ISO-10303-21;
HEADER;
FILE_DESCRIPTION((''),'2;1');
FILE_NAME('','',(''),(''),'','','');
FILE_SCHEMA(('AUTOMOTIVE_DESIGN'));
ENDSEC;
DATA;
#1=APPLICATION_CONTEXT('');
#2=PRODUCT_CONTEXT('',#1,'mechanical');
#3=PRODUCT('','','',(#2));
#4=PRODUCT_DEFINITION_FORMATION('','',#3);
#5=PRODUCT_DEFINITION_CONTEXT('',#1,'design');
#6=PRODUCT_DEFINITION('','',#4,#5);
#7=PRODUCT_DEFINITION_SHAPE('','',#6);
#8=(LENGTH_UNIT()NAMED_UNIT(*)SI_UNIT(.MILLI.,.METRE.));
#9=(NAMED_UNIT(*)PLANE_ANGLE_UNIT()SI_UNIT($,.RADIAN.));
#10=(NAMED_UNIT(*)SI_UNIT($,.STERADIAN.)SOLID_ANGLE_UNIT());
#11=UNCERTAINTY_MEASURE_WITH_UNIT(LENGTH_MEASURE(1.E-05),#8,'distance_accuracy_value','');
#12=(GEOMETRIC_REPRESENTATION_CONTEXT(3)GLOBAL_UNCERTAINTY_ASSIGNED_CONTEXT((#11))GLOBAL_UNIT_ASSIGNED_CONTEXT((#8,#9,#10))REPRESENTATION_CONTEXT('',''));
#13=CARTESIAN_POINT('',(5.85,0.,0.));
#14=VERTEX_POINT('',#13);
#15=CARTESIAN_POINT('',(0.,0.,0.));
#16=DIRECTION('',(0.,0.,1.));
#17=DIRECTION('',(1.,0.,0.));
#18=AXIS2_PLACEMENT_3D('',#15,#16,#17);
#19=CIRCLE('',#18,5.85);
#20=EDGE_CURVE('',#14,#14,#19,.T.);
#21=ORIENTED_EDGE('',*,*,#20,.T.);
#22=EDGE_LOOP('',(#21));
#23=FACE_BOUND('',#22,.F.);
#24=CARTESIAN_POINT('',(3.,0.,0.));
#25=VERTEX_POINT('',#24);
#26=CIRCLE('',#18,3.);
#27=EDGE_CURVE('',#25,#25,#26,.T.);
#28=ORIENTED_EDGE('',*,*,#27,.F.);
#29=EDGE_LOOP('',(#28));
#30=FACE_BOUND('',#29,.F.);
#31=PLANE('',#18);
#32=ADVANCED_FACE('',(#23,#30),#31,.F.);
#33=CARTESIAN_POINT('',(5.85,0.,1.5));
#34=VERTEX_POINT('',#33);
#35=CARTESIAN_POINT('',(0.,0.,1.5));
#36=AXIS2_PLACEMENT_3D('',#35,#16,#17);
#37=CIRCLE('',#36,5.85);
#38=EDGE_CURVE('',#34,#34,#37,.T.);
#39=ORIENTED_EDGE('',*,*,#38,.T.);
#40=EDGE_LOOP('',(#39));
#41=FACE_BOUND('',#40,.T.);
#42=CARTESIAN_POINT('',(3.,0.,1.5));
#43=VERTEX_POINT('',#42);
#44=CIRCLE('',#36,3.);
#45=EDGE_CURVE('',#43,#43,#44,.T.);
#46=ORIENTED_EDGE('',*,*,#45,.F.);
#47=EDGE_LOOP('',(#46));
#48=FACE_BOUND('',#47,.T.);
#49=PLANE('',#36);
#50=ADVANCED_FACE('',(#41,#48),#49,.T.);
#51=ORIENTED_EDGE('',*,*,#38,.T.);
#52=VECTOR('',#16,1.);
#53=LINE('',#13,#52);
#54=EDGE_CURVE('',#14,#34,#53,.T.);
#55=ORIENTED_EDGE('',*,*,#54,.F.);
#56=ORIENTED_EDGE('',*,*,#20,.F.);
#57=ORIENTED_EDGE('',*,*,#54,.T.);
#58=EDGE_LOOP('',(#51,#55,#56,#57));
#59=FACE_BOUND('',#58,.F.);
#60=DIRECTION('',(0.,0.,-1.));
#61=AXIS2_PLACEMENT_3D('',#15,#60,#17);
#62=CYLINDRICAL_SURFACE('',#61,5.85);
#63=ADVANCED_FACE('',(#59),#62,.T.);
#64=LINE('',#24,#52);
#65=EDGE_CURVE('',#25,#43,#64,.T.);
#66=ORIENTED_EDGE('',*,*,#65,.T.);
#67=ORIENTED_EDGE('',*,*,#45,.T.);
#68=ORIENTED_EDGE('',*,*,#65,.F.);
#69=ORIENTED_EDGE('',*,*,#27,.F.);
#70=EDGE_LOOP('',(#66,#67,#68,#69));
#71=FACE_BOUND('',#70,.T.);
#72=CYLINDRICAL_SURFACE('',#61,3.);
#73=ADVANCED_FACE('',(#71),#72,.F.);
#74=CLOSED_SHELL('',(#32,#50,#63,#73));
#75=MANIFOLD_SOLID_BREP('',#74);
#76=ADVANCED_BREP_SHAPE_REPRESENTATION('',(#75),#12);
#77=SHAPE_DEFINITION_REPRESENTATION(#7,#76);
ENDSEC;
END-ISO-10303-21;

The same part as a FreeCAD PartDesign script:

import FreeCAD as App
import Part
import Sketcher
from FreeCAD import Vector

doc = App.newDocument("Part")
body = doc.addObject("PartDesign::Body", "Body")

sketch1 = body.newObject("Sketcher::SketchObject", "Sketch")
sketch1.AttachmentSupport = (doc.getObject("XY_Plane"), [""])
sketch1.MapMode = "FlatFace"
sketch1.addGeometry([
    Part.Circle(Vector(0, 0, 0), Vector(0, 0, 1), 5.8),
    Part.Circle(Vector(0, 0, 0), Vector(0, 0, 1), 3),
], False)
sketch1.addConstraint([
    Sketcher.Constraint("Coincident", 0, 3, -1, 1),
    Sketcher.Constraint("Coincident", 1, 3, -1, 1),
    Sketcher.Constraint("Diameter", 1, 6.0),
    Sketcher.Constraint("Diameter", 0, 11.7),
])
pad1 = body.newObject("PartDesign::Pad", "Pad")
pad1.Profile = sketch1
pad1.Length = 1.5

doc.recompute()
